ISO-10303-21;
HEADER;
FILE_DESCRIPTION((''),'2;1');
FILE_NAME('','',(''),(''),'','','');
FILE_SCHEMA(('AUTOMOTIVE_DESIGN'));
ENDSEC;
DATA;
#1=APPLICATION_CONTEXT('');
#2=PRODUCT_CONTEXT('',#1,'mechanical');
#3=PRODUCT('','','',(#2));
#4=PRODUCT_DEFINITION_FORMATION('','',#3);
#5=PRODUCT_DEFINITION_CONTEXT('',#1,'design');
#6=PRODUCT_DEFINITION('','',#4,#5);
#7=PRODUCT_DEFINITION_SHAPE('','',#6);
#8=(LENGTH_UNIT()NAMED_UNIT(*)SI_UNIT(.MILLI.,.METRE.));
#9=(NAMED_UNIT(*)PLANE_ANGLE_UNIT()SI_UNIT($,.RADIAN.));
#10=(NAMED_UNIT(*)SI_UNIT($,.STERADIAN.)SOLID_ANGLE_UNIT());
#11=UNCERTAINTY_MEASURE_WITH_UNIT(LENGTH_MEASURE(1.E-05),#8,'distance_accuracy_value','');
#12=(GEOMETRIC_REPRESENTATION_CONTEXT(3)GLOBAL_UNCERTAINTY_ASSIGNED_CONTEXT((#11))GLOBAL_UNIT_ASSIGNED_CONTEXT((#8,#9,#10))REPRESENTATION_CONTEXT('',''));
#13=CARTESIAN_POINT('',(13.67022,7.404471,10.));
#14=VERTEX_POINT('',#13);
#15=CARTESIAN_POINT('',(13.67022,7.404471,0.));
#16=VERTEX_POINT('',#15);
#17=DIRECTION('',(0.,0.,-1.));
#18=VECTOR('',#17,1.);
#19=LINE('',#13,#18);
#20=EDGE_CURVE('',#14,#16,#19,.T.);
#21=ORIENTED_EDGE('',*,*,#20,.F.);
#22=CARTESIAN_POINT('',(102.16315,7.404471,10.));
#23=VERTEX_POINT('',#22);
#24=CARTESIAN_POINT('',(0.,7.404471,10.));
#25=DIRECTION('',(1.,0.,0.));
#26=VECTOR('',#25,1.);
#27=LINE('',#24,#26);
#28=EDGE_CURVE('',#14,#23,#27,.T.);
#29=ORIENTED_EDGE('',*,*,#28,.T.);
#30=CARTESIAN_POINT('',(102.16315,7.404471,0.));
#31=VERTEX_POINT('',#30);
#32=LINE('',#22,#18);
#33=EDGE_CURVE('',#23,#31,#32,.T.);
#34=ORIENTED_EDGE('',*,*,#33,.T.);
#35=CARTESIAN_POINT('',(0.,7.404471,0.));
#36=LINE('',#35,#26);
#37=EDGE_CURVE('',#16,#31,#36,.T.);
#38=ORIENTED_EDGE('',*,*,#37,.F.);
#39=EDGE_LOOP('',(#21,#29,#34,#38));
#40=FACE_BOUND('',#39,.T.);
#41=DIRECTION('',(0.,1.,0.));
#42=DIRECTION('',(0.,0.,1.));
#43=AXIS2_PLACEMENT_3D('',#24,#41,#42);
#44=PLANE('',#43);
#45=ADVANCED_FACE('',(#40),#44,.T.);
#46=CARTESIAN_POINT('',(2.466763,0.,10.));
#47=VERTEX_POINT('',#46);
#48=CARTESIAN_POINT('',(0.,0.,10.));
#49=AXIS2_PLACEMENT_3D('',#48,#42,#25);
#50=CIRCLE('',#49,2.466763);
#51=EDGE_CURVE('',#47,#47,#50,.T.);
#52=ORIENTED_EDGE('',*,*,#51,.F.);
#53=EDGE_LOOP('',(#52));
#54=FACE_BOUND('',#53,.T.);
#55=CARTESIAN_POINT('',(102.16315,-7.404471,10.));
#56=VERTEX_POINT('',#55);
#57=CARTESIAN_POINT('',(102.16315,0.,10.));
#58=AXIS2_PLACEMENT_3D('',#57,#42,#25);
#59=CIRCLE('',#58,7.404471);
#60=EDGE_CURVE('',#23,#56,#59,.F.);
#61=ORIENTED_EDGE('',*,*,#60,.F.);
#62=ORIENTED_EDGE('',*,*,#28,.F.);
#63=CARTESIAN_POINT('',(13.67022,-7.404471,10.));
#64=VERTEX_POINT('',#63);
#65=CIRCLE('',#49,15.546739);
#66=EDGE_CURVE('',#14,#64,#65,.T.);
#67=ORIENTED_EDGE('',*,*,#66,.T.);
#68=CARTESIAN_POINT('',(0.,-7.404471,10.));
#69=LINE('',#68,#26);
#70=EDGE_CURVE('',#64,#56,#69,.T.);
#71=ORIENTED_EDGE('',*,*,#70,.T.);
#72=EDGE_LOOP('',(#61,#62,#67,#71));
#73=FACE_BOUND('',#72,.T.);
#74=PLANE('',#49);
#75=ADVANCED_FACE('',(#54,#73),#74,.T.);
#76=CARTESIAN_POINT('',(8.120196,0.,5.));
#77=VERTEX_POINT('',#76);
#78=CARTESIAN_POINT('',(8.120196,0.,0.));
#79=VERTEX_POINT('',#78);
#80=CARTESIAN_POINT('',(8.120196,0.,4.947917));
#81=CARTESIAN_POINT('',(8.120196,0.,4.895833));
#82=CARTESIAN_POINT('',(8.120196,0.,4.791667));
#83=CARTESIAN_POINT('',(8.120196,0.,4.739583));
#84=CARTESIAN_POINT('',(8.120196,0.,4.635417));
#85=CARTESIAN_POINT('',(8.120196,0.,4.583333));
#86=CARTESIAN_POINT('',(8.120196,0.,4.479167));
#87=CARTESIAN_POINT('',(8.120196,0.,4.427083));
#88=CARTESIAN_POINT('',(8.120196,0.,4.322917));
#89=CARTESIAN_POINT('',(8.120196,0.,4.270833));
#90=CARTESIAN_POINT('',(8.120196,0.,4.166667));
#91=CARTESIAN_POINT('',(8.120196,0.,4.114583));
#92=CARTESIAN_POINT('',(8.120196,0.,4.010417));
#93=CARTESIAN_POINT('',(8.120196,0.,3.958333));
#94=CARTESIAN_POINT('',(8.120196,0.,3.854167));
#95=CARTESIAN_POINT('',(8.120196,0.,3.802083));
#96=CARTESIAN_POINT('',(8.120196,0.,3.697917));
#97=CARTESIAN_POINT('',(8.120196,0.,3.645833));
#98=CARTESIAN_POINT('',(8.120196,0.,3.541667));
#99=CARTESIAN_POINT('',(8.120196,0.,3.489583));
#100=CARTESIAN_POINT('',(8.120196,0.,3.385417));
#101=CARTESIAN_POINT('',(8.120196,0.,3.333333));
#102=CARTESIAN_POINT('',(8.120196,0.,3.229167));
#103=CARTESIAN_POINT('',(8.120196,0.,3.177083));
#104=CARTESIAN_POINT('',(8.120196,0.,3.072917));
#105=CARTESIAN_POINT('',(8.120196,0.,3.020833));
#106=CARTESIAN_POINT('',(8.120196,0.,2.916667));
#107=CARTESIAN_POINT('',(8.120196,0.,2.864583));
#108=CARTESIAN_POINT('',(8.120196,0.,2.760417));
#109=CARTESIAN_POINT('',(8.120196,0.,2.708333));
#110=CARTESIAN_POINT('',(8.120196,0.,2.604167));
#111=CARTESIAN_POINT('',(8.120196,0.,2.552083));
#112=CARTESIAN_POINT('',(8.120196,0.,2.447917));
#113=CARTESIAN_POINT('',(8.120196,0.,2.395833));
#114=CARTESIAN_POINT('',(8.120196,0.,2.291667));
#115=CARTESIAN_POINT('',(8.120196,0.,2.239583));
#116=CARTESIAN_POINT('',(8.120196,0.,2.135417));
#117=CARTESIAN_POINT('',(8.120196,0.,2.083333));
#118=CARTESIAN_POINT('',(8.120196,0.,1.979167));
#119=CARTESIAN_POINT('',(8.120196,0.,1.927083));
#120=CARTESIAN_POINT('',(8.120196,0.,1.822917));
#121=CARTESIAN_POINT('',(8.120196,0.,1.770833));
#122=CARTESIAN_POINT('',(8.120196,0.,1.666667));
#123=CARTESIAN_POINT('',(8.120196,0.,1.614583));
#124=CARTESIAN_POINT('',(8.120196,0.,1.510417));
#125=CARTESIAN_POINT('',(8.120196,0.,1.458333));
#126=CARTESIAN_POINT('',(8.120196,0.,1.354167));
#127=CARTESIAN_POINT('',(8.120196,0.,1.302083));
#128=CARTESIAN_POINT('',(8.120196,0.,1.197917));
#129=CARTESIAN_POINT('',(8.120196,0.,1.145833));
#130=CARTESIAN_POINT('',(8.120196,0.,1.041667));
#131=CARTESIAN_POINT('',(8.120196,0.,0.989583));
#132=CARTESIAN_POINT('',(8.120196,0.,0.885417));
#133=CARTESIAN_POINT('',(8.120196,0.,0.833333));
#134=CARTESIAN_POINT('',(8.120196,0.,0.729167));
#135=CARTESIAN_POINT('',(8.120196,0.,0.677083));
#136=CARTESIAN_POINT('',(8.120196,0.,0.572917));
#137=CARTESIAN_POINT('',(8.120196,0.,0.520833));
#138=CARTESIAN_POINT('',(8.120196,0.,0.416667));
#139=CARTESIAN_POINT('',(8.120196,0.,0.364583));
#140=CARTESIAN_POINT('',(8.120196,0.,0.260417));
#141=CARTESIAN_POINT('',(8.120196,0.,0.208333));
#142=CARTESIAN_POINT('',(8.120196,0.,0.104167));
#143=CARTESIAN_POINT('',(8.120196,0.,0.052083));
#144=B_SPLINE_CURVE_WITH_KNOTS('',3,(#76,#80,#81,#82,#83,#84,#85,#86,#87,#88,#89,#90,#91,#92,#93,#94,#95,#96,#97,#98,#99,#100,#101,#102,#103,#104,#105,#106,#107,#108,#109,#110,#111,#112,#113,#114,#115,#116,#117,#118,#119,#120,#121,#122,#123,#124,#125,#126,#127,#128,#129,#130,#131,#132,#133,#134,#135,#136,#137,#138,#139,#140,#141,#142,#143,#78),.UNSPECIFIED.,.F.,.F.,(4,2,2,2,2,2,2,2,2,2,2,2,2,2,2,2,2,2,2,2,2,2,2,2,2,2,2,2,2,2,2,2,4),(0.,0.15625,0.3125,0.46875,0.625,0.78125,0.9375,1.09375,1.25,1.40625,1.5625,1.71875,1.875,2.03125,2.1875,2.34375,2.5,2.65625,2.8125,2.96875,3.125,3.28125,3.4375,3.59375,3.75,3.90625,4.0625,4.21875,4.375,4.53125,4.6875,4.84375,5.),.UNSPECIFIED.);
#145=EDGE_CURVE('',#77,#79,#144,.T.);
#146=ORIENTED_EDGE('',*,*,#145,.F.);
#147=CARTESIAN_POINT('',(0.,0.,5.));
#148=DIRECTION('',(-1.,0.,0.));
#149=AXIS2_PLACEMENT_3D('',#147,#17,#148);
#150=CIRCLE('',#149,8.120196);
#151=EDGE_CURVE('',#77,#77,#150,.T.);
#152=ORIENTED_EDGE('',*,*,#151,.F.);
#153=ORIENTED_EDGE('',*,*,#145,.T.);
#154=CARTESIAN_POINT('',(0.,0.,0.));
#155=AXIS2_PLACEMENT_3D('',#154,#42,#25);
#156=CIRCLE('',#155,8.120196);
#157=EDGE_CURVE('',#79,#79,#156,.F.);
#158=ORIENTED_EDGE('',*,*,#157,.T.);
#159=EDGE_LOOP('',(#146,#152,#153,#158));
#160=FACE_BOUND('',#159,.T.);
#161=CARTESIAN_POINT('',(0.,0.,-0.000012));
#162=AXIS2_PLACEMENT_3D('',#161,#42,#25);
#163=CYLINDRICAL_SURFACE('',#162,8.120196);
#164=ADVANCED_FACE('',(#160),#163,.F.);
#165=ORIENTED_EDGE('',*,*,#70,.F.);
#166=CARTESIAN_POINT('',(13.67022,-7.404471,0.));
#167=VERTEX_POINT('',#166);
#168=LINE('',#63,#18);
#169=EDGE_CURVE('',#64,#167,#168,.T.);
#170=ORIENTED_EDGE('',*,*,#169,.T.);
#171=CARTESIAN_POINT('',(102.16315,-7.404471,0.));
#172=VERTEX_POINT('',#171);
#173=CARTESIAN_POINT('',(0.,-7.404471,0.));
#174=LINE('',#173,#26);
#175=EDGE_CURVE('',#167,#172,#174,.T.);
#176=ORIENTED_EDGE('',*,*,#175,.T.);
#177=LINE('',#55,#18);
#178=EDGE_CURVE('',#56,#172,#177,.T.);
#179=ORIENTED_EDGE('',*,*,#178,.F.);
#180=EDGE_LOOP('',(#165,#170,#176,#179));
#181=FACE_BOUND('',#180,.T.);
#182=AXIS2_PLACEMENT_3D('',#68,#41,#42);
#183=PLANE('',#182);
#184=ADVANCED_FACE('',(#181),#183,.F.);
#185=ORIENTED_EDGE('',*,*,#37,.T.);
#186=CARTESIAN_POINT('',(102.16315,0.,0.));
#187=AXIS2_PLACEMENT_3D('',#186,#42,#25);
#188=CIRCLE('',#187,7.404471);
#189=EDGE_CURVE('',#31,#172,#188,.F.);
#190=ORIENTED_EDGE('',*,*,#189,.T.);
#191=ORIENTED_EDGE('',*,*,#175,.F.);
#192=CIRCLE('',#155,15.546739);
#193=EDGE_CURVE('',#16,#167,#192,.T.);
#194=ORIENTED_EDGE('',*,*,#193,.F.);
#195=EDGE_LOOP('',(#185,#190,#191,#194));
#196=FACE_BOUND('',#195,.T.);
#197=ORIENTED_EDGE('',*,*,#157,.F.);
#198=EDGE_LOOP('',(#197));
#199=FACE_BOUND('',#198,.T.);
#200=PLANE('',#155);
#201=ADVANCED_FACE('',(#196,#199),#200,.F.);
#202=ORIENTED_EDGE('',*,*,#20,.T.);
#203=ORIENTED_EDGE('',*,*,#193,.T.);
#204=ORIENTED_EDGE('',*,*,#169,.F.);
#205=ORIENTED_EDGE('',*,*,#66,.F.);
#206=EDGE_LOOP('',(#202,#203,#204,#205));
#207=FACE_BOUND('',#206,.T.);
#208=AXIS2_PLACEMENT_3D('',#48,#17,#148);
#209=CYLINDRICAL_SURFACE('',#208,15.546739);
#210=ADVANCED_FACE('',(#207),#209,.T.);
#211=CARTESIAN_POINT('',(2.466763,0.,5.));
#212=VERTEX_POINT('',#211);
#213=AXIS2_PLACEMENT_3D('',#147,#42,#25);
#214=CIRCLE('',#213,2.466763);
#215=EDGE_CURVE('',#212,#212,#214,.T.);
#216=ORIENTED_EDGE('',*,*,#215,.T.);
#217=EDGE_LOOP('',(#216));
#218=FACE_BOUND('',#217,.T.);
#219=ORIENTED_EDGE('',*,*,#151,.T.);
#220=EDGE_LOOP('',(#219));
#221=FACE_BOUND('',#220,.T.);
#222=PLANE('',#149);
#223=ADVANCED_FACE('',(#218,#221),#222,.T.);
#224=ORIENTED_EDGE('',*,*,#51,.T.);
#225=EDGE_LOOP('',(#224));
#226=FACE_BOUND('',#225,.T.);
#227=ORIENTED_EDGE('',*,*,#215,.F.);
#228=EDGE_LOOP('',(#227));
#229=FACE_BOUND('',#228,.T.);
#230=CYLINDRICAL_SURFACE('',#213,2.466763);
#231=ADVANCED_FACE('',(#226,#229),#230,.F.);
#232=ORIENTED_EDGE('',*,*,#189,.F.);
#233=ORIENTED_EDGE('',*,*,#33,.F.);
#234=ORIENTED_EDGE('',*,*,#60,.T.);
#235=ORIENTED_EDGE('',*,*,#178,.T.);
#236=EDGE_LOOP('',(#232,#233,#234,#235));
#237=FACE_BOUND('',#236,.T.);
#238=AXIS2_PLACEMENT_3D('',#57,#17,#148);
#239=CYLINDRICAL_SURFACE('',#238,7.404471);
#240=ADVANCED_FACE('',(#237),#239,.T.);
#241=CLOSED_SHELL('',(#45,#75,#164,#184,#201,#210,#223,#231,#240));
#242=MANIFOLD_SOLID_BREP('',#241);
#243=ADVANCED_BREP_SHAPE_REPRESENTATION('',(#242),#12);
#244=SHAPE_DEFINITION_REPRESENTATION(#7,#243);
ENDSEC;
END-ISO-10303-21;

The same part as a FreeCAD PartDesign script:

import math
import FreeCAD as App
import Part
import Sketcher

V = App.Vector

doc = App.newDocument("Part")
body = doc.addObject("PartDesign::Body", "Body")

# Sketch on XY plane
sketch1 = body.newObject("Sketcher::SketchObject", "Sketch")
sketch1.AttachmentSupport = (doc.getObject("XY_Plane"), [""])
sketch1.MapMode = "FlatFace"
sketch1.addGeometry([
    Part.LineSegment(V(102.16315, 7.404471, 0), V(13.67022, 7.404471, 0)),
    Part.ArcOfCircle(Part.Circle(V(0, 0, 0), V(0, 0, 1), 15.546739), math.radians(28.442179), math.radians(331.557821)),
    Part.LineSegment(V(13.67022, -7.404471, 0), V(102.16315, -7.404471, 0)),
    Part.ArcOfCircle(Part.Circle(V(102.16315, 0, 0), V(0, 0, 1), 7.404471), math.radians(-90), math.radians(90)),
], False)
sketch1.addConstraint([
    Sketcher.Constraint("Coincident", 0, 2, 1, 1),
    Sketcher.Constraint("Coincident", 1, 2, 2, 1),
    Sketcher.Constraint("Tangent", 2, 2, 3, 1),
    Sketcher.Constraint("Tangent", 3, 2, 0, 1),
    Sketcher.Constraint("Horizontal", 0),
    Sketcher.Constraint("Horizontal", 2),
    Sketcher.Constraint("Coincident", 1, 3, -1, 1),
    Sketcher.Constraint("PointOnObject", 3, 3, -1),
    Sketcher.Constraint("Radius", 1, 15.546739),
    Sketcher.Constraint("Radius", 3, 7.404471),
    Sketcher.Constraint("DistanceX", 0, 2, 0, 1, 88.49293),
])
pad1 = body.newObject("PartDesign::Pad", "Pad")
pad1.Profile = sketch1
pad1.Length = 10

# Sketch on XY plane
sketch2 = body.newObject("Sketcher::SketchObject", "Sketch001")
sketch2.AttachmentSupport = (doc.getObject("XY_Plane"), [""])
sketch2.MapMode = "FlatFace"
sketch2.addGeometry(Part.Circle(V(0, 0, 0), V(0, 0, 1), 8.120196), False)
sketch2.addConstraint([
    Sketcher.Constraint("Coincident", 0, 3, -1, 1),
    Sketcher.Constraint("Diameter", 0, 16.240393),
])
pocket1 = body.newObject("PartDesign::Pocket", "Pocket")
pocket1.Profile = sketch2
pocket1.Type = "TwoLengths"
pocket1.Length = 112.115997
pocket1.Length2 = 5

# Sketch on XY plane
sketch3 = body.newObject("Sketcher::SketchObject", "Sketch002")
sketch3.AttachmentSupport = (doc.getObject("XY_Plane"), [""])
sketch3.MapMode = "FlatFace"
sketch3.AttachmentOffset = App.Placement(V(0, 0, 10), App.Rotation())
sketch3.addGeometry(Part.Circle(V(0, 0, 0), V(0, 0, 1), 2.466763), False)
sketch3.addConstraint([
    Sketcher.Constraint("Coincident", 0, 3, -1, 1),
    Sketcher.Constraint("Diameter", 0, 4.933526),
])
pocket2 = body.newObject("PartDesign::Pocket", "Pocket001")
pocket2.Profile = sketch3
pocket2.Length = 5

doc.recompute()
